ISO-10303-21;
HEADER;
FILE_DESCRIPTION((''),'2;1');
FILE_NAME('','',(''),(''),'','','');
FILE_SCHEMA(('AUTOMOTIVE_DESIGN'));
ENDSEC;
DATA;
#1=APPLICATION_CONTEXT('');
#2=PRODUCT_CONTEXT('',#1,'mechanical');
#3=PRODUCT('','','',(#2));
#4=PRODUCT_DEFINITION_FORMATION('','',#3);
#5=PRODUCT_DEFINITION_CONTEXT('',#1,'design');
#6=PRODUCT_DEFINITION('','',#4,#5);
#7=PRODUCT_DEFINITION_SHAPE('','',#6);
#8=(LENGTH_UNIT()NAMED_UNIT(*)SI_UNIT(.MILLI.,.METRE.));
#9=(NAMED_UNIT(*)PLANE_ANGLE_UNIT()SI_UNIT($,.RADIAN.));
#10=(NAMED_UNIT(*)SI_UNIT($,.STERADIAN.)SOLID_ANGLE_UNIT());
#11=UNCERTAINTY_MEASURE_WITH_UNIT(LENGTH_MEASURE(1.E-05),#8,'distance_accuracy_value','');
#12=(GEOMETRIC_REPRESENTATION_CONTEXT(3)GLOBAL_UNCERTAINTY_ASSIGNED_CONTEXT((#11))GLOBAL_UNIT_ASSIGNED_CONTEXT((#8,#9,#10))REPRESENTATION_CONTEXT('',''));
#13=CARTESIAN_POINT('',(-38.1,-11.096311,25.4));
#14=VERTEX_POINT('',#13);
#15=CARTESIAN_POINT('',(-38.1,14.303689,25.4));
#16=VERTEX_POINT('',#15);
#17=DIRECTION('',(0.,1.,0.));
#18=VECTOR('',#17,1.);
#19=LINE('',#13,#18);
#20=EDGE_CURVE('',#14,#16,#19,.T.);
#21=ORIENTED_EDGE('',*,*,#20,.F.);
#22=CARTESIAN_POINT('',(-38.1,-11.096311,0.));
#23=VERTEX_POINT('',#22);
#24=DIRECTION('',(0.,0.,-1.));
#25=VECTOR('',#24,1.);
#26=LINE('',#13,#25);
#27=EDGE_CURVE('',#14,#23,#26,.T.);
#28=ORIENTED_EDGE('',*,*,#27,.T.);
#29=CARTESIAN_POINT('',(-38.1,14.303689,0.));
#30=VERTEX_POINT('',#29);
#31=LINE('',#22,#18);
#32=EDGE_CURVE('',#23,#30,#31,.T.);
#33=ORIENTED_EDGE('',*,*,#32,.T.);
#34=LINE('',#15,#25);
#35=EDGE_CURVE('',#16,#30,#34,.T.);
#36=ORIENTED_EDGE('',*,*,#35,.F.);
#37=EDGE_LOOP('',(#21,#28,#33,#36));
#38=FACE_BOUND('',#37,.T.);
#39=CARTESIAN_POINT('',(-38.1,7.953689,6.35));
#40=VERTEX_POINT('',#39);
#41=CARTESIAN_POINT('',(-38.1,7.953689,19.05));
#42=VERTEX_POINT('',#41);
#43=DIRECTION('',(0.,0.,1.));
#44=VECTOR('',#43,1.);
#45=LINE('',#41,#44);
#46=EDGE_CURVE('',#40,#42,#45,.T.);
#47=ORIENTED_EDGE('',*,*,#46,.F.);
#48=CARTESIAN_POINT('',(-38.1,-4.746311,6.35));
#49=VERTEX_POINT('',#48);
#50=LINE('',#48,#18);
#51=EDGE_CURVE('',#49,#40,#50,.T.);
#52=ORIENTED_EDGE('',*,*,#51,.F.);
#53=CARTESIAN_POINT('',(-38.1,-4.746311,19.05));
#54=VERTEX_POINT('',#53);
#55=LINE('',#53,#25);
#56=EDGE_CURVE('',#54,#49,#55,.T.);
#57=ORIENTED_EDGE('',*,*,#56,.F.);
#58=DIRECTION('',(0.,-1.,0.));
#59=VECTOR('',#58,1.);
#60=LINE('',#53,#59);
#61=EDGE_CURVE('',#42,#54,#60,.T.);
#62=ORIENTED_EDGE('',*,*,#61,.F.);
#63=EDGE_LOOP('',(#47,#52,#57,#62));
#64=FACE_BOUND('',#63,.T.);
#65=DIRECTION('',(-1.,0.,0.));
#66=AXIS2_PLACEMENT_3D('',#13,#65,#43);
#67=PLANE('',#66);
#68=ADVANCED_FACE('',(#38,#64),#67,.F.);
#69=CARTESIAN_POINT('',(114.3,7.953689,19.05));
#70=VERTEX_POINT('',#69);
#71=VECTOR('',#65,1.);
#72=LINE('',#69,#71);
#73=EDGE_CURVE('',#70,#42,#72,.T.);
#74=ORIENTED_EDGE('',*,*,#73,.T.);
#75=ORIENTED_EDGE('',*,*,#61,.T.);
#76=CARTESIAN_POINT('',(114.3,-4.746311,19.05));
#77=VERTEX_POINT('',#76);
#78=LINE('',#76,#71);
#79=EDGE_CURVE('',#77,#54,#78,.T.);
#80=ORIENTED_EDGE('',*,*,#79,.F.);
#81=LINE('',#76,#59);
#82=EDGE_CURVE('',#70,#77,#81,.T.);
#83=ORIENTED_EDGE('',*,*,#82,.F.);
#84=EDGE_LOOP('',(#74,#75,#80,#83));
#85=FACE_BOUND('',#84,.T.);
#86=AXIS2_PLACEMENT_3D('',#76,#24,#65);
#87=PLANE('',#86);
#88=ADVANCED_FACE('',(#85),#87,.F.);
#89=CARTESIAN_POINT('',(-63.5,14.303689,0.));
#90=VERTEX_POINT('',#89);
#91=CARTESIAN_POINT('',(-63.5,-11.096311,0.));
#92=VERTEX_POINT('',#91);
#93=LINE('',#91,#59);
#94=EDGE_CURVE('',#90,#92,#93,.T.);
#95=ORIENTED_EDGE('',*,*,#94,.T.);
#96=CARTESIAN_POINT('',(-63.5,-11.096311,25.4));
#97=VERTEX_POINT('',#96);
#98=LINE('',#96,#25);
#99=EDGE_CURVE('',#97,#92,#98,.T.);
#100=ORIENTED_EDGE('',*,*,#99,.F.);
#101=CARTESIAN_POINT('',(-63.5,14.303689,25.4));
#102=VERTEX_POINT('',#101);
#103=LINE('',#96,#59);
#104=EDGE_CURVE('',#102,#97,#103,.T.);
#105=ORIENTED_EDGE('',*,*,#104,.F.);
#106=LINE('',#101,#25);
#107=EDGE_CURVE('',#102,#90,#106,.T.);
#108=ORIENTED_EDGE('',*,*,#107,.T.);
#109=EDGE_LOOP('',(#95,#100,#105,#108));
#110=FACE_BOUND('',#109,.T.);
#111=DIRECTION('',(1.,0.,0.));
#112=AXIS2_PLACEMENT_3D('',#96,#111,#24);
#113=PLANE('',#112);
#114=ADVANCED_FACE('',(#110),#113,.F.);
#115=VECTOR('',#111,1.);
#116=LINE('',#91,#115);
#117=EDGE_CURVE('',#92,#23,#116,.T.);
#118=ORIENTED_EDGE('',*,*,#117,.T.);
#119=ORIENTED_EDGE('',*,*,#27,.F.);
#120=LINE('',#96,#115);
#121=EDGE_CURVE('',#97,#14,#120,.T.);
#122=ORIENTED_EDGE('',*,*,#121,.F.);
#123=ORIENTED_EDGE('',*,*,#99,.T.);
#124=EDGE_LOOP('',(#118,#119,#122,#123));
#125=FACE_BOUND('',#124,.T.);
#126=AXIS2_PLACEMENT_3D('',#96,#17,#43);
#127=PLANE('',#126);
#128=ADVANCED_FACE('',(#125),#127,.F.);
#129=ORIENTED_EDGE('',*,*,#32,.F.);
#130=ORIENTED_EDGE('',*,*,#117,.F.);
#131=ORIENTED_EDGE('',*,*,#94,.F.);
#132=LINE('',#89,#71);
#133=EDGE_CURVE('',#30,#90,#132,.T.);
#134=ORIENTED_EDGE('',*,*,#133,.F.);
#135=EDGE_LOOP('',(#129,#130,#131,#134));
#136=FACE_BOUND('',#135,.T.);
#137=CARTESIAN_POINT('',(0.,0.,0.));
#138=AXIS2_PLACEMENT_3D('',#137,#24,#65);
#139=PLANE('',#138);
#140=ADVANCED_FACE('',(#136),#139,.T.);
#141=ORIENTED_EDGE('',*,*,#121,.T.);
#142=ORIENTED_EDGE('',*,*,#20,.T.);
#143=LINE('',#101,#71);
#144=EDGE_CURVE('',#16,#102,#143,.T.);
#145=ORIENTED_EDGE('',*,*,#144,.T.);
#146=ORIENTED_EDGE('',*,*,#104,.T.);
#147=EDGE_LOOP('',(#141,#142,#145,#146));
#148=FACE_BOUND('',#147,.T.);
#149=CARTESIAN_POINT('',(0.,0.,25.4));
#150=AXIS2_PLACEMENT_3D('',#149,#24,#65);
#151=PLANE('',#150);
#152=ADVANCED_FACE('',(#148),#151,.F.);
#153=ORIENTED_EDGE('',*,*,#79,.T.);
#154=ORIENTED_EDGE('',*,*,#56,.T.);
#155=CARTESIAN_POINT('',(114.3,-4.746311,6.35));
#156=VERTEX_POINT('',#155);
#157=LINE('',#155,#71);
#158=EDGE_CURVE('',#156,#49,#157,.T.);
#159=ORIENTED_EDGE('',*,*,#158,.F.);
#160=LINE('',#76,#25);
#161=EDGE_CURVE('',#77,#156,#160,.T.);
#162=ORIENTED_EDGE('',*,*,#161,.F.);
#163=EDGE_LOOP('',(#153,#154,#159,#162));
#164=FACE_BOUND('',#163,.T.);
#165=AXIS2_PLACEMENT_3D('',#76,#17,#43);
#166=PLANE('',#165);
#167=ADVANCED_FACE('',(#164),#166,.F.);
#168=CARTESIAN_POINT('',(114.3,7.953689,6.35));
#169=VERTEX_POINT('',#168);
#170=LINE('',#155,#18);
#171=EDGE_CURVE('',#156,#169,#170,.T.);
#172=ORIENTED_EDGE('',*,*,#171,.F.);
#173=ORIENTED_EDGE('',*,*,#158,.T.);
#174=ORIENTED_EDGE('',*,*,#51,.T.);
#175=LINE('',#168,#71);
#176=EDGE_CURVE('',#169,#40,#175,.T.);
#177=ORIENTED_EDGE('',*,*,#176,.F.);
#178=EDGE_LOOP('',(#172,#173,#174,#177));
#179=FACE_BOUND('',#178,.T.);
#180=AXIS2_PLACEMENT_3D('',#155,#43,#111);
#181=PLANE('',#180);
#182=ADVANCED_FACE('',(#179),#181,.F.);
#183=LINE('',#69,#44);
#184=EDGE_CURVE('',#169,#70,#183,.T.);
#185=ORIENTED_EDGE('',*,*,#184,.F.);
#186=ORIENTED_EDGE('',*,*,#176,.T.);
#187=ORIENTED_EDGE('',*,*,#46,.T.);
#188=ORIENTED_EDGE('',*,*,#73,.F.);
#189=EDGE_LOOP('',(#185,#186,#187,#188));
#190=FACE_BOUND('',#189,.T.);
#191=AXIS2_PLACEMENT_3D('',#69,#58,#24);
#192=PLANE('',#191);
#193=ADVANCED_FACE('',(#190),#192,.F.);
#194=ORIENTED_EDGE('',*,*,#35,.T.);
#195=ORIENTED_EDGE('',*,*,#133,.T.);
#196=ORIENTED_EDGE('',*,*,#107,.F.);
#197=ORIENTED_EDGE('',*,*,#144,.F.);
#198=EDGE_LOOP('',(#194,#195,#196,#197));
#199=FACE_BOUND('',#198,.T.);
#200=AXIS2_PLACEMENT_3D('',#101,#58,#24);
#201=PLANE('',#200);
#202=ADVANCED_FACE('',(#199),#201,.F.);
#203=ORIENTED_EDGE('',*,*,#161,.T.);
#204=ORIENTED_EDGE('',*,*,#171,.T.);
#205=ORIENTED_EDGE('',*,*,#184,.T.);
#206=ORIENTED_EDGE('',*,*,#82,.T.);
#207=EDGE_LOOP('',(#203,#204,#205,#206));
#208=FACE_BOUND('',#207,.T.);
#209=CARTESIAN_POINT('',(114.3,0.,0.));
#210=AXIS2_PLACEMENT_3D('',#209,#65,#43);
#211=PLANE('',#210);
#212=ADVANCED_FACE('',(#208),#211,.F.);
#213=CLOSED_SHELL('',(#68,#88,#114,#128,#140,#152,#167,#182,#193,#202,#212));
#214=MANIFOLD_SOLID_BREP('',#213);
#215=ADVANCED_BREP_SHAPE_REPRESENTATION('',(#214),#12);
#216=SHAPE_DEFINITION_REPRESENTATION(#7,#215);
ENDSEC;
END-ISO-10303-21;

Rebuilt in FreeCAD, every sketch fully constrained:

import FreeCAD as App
import Part
import Sketcher
Q = App.Units.Quantity


def add_polygon(sketch, points):
    """Adds a closed chain of lines whose ends are joined by coincident constraints."""
    first, n = sketch.GeometryCount, len(points)
    for a, b in zip(points, points[1:] + points[:1]):
        sketch.addGeometry(Part.LineSegment(App.Vector(*a, 0), App.Vector(*b, 0)), False)
    for i in range(n):
        sketch.addConstraint(Sketcher.Constraint("Coincident", first + i, 2, first + (i + 1) % n, 1))

doc = App.newDocument("Part")
body = doc.addObject("PartDesign::Body", "Body")

sketch1 = body.newObject("Sketcher::SketchObject", "Sketch")
sketch1.AttachmentSupport = (doc.getObject("XY_Plane"), [""])
sketch1.MapMode = "FlatFace"
add_polygon(sketch1, [(-63.5, 14.303689), (-63.5, -11.096311), (-38.1, -11.096311), (-38.1, 14.303689)])
sketch1.addConstraint([
    Sketcher.Constraint("Vertical", 0),
    Sketcher.Constraint("Horizontal", 1),
    Sketcher.Constraint("Vertical", 2),
    Sketcher.Constraint("Horizontal", 3),
    Sketcher.Constraint("Equal", 3, 0),
    Sketcher.Constraint("DistanceX", 1, 1, 1, 2, Q("1 in")),
    Sketcher.Constraint("DistanceX", 0, 2, -1, 1, Q("2.5 in")),
    Sketcher.Constraint("DistanceY", 0, 2, -1, 1, 11.096311),
])
pad1 = body.newObject("PartDesign::Pad", "Pad")
pad1.Profile = sketch1
pad1.Length = Q("1 in")

sketch2 = body.newObject("Sketcher::SketchObject", "Sketch001")
sketch2.AttachmentSupport = (doc.getObject("YZ_Plane"), [""])
sketch2.MapMode = "FlatFace"
sketch2.AttachmentOffset = App.Placement(App.Vector(0, 0, -1.5 * 25.4), App.Rotation())
add_polygon(sketch2, [(7.953689, 19.05), (-4.746311, 19.05), (-4.746311, 6.35), (7.953689, 6.35)])
sketch2.addConstraint([
    Sketcher.Constraint("Horizontal", 0),
    Sketcher.Constraint("Vertical", 1),
    Sketcher.Constraint("Horizontal", 2),
    Sketcher.Constraint("Vertical", 3),
    Sketcher.Constraint("Equal", 2, 1),
    Sketcher.Constraint("DistanceX", 0, 2, 0, 1, Q("0.5 in")),
    Sketcher.Constraint("DistanceY", -1, 1, 0, 2, Q("0.75 in")),
    Sketcher.Constraint("DistanceX", 0, 2, -1, 1, 4.746311),
])
pad2 = body.newObject("PartDesign::Pad", "Pad001")
pad2.Profile = sketch2
pad2.Length = Q("6 in")

doc.recompute()
